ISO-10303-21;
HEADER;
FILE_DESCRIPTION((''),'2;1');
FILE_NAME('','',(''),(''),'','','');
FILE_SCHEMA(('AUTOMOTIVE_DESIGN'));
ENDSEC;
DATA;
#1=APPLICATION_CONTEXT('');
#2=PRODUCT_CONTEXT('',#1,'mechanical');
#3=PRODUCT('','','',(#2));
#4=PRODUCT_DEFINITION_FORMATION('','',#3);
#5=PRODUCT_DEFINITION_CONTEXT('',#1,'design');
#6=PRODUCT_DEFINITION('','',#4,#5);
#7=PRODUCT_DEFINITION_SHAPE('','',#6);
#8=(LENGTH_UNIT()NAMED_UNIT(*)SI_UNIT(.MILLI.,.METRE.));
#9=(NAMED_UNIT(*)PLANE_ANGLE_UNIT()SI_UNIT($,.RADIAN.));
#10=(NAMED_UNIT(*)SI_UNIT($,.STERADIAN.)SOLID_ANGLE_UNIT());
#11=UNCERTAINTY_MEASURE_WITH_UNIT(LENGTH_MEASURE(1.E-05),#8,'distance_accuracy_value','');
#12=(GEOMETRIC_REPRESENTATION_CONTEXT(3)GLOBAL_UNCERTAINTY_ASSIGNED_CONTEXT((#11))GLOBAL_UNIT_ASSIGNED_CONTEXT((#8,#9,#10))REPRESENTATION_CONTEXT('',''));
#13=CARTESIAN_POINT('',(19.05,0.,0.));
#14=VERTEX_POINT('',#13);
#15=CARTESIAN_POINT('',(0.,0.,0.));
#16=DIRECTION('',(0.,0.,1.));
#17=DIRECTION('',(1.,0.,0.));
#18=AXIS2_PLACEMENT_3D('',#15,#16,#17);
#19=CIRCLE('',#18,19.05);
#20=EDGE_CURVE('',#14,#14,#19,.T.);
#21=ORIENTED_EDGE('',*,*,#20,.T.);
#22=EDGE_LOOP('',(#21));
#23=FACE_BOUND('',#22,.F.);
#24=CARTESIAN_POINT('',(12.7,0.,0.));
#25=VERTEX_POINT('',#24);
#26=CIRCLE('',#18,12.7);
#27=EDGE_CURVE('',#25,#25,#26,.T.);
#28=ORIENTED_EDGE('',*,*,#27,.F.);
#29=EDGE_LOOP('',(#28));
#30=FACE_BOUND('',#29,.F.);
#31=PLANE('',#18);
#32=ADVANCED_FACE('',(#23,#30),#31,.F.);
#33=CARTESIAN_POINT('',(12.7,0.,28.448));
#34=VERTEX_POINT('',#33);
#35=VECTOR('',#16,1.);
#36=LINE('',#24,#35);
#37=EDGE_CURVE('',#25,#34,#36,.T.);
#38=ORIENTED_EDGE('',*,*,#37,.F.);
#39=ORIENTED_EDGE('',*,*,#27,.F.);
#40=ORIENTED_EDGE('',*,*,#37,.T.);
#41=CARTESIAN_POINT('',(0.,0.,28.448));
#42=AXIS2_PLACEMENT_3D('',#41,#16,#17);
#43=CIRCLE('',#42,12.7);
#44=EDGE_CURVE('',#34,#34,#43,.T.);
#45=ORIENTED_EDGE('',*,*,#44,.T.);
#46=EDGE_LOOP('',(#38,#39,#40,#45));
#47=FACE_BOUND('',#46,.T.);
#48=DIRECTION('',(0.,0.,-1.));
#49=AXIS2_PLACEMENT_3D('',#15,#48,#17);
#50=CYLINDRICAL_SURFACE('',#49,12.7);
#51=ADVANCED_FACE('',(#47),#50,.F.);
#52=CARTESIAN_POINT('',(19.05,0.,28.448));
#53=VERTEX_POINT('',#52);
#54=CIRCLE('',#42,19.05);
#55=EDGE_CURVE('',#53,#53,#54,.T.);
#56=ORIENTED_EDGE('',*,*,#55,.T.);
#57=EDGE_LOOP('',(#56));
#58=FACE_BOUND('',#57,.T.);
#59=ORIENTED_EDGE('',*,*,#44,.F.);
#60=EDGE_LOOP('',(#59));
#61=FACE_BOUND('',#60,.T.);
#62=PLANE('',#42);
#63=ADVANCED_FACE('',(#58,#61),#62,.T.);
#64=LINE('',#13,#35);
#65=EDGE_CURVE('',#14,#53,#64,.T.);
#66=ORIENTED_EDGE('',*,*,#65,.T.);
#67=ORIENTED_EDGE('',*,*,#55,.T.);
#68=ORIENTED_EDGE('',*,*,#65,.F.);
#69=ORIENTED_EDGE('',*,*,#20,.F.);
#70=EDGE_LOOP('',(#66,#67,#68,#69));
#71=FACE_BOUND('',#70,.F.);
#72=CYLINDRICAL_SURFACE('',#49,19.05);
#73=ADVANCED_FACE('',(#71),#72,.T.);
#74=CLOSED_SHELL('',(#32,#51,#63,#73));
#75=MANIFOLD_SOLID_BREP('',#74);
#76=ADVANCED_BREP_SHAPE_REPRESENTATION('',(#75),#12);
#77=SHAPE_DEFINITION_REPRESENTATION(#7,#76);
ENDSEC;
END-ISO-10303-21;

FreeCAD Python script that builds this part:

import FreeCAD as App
import Part
import Sketcher
Q = App.Units.Quantity


def faces_at(feature, points):
    """Names of the faces that lie closest to the given points."""
    faces = feature.Shape.Faces
    near = lambda p: min(range(len(faces)), key=lambda i: faces[i].distToShape(Part.Vertex(*p))[0])
    return sorted({f"Face{near(p) + 1}" for p in points})

doc = App.newDocument("Part")
params = doc.addObject("Spreadsheet::Sheet", "Params")
for row, (alias, value) in enumerate([
    ("sketch1_diameter", "1 in"),
    ("pad1_length", "1.12 in"),
    ("thickness_wall", "0.25 in"),
], start=1):
    params.set(f"A{row}", alias)
    params.set(f"B{row}", "=" + value)
    params.setAlias(f"B{row}", alias)

body = doc.addObject("PartDesign::Body", "Body")

# Sketch on XY plane
sketch1 = body.newObject("Sketcher::SketchObject", "Sketch")
sketch1.AttachmentSupport = (doc.getObject("XY_Plane"), [""])
sketch1.MapMode = "FlatFace"
sketch1.addGeometry(Part.Circle(App.Vector(0, 0, 0), App.Vector(0, 0, 1), 13), False)
sketch1.addConstraint([
    Sketcher.Constraint("Coincident", 0, 3, -1, 1),
    Sketcher.Constraint("Diameter", 0, Q("1 in")),
])
sketch1.setExpression("Constraints[1]", "Params.sketch1_diameter")
pad1 = body.newObject("PartDesign::Pad", "Pad")
pad1.Profile = sketch1
pad1.setExpression("Length", "Params.pad1_length")
doc.recompute()

thickness = body.newObject("PartDesign::Thickness", "Thickness")
thickness.Base = (pad1, faces_at(pad1, [(0, 0, 28.448), (0, 0, 0)]))
thickness.setExpression("Value", "Params.thickness_wall")
thickness.Reversed = False
thickness.Join = "Arc"

doc.recompute()
